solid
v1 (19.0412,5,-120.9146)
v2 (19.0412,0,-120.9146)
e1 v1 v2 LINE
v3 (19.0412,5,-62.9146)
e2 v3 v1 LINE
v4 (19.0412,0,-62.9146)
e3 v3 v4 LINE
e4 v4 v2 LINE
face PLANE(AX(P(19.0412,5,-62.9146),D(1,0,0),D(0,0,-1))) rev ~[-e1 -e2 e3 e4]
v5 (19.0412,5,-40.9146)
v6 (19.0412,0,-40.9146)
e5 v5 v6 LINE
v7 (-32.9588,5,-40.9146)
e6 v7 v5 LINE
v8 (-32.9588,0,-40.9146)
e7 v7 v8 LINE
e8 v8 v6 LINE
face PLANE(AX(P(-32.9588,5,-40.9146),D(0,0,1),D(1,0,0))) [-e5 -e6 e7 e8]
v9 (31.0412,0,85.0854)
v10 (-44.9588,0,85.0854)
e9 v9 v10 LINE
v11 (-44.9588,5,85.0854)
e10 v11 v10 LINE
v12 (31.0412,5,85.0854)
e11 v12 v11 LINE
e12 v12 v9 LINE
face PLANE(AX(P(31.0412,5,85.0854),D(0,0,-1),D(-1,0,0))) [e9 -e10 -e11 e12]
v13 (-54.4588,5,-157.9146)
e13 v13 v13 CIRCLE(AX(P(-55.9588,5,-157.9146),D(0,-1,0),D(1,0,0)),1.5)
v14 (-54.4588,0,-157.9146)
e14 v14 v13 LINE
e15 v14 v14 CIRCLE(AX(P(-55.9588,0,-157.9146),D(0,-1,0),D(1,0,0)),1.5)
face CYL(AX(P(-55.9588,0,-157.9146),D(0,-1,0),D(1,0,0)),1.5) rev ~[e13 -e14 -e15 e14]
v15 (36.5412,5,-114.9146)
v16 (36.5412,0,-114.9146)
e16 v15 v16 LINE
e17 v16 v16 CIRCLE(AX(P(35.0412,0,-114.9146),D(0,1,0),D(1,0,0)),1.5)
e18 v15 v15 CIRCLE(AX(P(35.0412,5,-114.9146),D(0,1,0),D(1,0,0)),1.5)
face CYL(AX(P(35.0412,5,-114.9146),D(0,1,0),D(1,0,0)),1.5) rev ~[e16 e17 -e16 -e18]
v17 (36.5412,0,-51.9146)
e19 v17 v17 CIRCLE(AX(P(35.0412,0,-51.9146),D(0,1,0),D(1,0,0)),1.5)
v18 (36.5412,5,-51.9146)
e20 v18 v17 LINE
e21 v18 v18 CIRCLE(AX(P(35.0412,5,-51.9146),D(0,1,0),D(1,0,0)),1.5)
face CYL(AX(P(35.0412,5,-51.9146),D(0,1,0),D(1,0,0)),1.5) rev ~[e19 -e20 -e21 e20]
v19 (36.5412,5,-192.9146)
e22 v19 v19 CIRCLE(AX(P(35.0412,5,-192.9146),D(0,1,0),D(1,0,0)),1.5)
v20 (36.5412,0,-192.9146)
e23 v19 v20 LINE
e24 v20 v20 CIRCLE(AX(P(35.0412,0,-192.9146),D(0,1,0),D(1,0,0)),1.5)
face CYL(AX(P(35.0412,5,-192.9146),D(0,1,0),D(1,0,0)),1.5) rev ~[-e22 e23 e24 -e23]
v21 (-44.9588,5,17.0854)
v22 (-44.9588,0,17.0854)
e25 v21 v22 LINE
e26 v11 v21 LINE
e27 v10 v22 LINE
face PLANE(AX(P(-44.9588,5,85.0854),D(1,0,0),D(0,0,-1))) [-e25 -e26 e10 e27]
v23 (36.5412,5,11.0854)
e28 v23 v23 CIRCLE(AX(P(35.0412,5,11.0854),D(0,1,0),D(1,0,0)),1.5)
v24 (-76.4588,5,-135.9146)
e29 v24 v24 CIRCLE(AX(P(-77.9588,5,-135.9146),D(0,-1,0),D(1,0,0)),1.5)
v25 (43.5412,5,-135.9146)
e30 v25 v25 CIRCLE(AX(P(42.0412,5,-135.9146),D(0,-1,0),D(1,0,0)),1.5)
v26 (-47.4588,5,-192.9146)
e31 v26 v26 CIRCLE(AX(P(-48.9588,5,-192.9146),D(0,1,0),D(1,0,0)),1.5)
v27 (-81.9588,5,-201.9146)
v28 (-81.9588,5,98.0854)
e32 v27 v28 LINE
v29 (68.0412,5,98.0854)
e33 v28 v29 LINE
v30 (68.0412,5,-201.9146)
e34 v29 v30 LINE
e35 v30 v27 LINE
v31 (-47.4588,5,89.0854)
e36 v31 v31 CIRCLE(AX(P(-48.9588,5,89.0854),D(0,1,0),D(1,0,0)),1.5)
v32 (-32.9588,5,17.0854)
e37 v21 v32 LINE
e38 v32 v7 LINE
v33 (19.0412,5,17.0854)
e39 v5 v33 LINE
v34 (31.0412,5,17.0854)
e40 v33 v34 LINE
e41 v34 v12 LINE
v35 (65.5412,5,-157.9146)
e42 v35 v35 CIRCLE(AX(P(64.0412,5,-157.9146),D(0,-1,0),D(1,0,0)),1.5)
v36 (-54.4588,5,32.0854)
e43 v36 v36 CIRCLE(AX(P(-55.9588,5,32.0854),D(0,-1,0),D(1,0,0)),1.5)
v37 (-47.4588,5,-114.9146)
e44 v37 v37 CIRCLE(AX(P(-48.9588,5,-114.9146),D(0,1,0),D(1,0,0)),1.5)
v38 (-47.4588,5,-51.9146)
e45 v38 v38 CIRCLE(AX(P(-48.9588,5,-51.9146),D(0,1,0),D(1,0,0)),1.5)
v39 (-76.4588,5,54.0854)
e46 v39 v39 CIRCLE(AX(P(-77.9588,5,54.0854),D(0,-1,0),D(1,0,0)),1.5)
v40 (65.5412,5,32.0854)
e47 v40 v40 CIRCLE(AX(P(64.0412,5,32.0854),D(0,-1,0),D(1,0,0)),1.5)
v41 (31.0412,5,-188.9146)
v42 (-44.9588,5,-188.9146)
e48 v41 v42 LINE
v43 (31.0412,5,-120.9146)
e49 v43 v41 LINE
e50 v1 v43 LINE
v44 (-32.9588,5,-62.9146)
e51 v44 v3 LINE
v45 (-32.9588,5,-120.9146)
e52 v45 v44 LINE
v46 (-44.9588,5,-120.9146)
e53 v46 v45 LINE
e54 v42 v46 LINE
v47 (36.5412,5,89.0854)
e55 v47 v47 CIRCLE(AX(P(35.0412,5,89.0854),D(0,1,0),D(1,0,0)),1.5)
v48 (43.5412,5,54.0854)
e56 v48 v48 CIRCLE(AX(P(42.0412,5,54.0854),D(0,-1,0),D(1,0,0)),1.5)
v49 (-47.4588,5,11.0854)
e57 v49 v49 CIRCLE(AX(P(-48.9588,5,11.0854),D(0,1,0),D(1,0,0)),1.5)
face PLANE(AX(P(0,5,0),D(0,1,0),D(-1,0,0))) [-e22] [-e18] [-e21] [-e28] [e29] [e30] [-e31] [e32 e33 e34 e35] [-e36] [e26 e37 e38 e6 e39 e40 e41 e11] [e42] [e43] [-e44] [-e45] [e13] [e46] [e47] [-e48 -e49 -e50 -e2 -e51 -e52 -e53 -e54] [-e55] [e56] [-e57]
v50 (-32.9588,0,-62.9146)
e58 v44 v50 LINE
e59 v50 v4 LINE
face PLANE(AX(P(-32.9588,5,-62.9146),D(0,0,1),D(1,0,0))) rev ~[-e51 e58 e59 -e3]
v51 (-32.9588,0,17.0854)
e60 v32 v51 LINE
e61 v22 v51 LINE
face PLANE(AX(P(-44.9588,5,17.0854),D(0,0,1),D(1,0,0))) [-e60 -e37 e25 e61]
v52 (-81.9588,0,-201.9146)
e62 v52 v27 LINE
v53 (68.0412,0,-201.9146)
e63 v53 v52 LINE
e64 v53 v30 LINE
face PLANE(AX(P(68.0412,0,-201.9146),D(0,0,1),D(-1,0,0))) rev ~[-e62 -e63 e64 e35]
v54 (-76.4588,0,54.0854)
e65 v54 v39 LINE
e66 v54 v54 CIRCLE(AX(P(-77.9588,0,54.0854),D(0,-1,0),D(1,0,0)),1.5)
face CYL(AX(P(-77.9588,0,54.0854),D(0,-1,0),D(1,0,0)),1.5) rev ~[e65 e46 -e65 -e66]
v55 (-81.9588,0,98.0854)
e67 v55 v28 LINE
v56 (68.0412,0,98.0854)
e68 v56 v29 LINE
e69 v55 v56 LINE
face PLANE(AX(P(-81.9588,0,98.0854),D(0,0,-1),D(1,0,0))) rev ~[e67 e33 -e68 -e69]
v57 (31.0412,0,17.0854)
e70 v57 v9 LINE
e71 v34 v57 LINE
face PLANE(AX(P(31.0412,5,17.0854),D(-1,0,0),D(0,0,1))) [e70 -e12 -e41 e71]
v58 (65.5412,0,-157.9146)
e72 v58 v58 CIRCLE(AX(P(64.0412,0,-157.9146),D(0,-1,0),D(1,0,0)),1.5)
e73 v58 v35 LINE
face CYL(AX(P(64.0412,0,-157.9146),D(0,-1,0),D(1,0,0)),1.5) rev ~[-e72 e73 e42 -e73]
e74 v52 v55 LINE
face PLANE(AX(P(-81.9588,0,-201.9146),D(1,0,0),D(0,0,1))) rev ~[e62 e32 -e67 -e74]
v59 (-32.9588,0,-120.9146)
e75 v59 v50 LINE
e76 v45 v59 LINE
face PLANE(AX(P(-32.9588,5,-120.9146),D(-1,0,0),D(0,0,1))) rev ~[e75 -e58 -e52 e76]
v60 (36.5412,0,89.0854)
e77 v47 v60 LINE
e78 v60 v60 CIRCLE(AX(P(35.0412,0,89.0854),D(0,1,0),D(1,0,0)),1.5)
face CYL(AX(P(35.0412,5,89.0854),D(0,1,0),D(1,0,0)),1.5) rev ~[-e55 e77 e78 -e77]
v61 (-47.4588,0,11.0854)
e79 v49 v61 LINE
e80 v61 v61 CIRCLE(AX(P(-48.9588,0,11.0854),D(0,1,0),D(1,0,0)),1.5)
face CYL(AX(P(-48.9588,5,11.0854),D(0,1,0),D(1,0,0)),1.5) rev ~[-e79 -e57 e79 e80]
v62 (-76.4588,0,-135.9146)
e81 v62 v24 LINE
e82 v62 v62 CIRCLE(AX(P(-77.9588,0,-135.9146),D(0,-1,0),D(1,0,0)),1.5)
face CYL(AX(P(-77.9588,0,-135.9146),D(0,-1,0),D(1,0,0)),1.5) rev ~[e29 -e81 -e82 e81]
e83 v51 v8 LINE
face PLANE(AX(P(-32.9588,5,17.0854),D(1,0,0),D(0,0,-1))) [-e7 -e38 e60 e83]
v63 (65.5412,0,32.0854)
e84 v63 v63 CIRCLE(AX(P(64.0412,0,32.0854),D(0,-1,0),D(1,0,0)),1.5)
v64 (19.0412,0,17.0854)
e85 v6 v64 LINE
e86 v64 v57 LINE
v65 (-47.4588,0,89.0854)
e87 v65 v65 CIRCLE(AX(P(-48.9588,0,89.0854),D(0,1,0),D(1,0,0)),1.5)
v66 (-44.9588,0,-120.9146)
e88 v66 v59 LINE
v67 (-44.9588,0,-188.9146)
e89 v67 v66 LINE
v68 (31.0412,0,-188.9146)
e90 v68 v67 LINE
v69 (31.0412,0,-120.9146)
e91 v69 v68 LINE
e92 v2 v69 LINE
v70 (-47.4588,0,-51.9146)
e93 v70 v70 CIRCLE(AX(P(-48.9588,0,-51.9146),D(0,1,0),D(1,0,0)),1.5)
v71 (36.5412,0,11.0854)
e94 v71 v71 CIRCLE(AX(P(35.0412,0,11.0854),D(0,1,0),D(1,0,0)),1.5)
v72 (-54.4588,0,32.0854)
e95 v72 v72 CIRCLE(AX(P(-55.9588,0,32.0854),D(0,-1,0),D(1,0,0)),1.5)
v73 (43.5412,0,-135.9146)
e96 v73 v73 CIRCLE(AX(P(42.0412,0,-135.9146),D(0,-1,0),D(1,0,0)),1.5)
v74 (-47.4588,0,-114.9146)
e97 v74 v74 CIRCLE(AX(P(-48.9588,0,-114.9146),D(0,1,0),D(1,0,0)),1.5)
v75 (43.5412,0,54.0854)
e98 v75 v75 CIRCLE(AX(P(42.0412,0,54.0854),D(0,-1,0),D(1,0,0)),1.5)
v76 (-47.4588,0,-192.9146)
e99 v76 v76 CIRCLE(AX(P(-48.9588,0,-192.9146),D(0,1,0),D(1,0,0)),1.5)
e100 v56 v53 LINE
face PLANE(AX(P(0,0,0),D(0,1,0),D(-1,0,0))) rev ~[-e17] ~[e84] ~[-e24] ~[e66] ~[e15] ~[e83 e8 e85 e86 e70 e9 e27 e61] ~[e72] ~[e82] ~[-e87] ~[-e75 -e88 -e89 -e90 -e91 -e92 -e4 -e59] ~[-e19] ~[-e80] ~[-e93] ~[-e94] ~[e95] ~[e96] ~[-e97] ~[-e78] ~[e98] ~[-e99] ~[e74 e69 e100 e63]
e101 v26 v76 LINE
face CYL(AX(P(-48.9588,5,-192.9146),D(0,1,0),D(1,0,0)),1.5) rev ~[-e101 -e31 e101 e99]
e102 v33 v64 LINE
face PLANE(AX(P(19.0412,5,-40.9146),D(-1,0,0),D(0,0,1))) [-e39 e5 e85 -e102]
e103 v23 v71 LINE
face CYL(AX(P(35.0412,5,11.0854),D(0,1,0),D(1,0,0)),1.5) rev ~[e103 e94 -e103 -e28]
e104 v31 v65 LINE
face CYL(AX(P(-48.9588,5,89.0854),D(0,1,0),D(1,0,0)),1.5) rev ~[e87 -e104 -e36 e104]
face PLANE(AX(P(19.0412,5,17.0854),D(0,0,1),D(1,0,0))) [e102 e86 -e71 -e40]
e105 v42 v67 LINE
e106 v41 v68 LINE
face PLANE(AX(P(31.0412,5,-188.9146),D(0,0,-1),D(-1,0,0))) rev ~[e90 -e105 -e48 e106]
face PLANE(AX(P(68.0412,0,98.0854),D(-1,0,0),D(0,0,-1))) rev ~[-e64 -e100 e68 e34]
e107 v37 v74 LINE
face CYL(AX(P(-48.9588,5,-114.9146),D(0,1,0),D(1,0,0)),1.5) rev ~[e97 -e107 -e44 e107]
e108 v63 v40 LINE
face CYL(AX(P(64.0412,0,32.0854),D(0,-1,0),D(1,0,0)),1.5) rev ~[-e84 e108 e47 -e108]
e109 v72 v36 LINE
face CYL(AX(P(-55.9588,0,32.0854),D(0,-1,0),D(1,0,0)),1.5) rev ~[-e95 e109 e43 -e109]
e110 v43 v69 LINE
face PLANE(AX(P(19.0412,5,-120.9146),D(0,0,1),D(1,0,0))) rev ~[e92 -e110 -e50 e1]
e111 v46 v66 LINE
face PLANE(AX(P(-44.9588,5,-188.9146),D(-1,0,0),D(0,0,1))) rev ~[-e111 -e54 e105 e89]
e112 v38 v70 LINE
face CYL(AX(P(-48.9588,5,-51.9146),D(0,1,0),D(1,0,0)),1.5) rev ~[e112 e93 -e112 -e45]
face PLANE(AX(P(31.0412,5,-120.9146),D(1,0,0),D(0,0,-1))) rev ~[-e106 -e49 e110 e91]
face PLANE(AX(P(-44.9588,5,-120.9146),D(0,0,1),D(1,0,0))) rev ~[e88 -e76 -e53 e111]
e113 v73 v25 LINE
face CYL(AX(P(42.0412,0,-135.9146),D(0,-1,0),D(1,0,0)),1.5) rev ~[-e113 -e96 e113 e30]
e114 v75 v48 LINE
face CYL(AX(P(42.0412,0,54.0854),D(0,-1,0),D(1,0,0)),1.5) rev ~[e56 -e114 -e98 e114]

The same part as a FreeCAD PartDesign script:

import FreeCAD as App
import Part
import Sketcher
Q = App.Units.Quantity


def add_polygon(sketch, points):
    """Adds a closed chain of lines whose ends are joined by coincident constraints."""
    first, n = sketch.GeometryCount, len(points)
    for a, b in zip(points, points[1:] + points[:1]):
        sketch.addGeometry(Part.LineSegment(App.Vector(*a, 0), App.Vector(*b, 0)), False)
    for i in range(n):
        sketch.addConstraint(Sketcher.Constraint("Coincident", first + i, 2, first + (i + 1) % n, 1))

doc = App.newDocument("Part")
body = doc.addObject("PartDesign::Body", "Body")

# Sketch on XZ plane
sketch1 = body.newObject("Sketcher::SketchObject", "Sketch")
sketch1.AttachmentSupport = (doc.getObject("XZ_Plane"), [""])
sketch1.MapMode = "FlatFace"
add_polygon(sketch1, [(-82, -202), (-82, 98), (68, 98), (68, -202)])  # lines 0-3
sketch1.addConstraint([
    Sketcher.Constraint("Vertical", 0),
    Sketcher.Constraint("Horizontal", 1),
    Sketcher.Constraint("Vertical", 2),
    Sketcher.Constraint("Horizontal", 3),
    Sketcher.Constraint("DistanceX", 1, 1, 1, 2, Q("150 mm")),
    Sketcher.Constraint("DistanceY", 0, 1, 0, 2, Q("300 mm")),
    Sketcher.Constraint("DistanceX", 0, 2, -1, 1, Q("81.9588 mm")),
    Sketcher.Constraint("DistanceY", -1, 1, 0, 2, Q("98.0854 mm")),
])
pad1 = body.newObject("PartDesign::Pad", "Pad")
pad1.Profile = sketch1
pad1.Length = 5
pad1.Reversed = True

# Sketch on XZ plane
sketch2 = body.newObject("Sketcher::SketchObject", "Sketch001")
sketch2.AttachmentSupport = (doc.getObject("XZ_Plane"), [""])
sketch2.MapMode = "FlatFace"
sketch2.AttachmentOffset = App.Placement(App.Vector(0, 0, -5), App.Rotation())
add_polygon(sketch2, [(-45, 85.1), (31, 85.1), (31, 17.1), (19, 17.1), (19, -40.9), (-33, -40.9), (-33, 17.1), (-45, 17.1)])  # lines 0-7
add_polygon(sketch2, [(31, -120.9), (31, -188.9), (-45, -188.9), (-45, -120.9), (-33, -120.9), (-33, -62.9), (19, -62.9), (19, -120.9)])  # lines 8-15
sketch2.addGeometry(Part.Circle(App.Vector(35, -51.9, 0), App.Vector(0, 0, 1), 1.5), False)  # 16
sketch2.addGeometry(Part.Circle(App.Vector(-49, -51.9, 0), App.Vector(0, 0, 1), 1.5), False)  # 17
sketch2.addConstraint([
    Sketcher.Constraint("Horizontal", 0),
    Sketcher.Constraint("Vertical", 1),
    Sketcher.Constraint("Horizontal", 2),
    Sketcher.Constraint("Vertical", 3),
    Sketcher.Constraint("Horizontal", 4),
    Sketcher.Constraint("Vertical", 5),
    Sketcher.Constraint("Horizontal", 6),
    Sketcher.Constraint("Vertical", 7),
    Sketcher.Constraint("Vertical", 8),
    Sketcher.Constraint("Horizontal", 9),
    Sketcher.Constraint("Vertical", 10),
    Sketcher.Constraint("Horizontal", 11),
    Sketcher.Constraint("Vertical", 12),
    Sketcher.Constraint("Horizontal", 13),
    Sketcher.Constraint("Vertical", 14),
    Sketcher.Constraint("Horizontal", 15),
    Sketcher.Constraint("Equal", 16, 17),
    Sketcher.Constraint("Horizontal", 16, 3, 17, 3),
    Sketcher.Constraint("Horizontal", 2, 2, 5, 2),
    Sketcher.Constraint("Horizontal", 11, 2, 14, 2),
    Sketcher.Constraint("Vertical", 1, 2, 8, 2),
    Sketcher.Constraint("Vertical", 7, 2, 9, 2),
    Sketcher.Constraint("Vertical", 5, 2, 11, 2),
    Sketcher.Constraint("Vertical", 3, 2, 13, 2),
    Sketcher.Constraint("Equal", 2, 6),
    Sketcher.Constraint("Equal", 7, 8),
    Sketcher.Constraint("Equal", 5, 12),
    Sketcher.Constraint("Diameter", 16, Q("3 mm")),
    Sketcher.Constraint("DistanceX", 0, 1, 0, 2, Q("76 mm")),
    Sketcher.Constraint("DistanceX", 2, 2, 2, 1, Q("12 mm")),
    Sketcher.Constraint("DistanceY", 1, 2, 1, 1, Q("68 mm")),
    Sketcher.Constraint("DistanceY", 3, 2, 3, 1, Q("58 mm")),
    Sketcher.Constraint("DistanceX", 17, 3, 2, 2, Q("68 mm")),
    Sketcher.Constraint("DistanceX", 4, 2, 16, 3, Q("68 mm")),
    Sketcher.Constraint("DistanceY", 16, 3, 0, 2, Q("137 mm")),
    Sketcher.Constraint("DistanceY", 8, 2, 16, 3, Q("137 mm")),
    Sketcher.Constraint("DistanceX", -1, 1, 16, 3, Q("35.0412 mm")),
    Sketcher.Constraint("DistanceY", 16, 3, -1, 1, Q("51.9146 mm")),
])
pocket1 = body.newObject("PartDesign::Pocket", "Pocket")
pocket1.Profile = sketch2
pocket1.Type = "ThroughAll"
pocket1.Reversed = True

# Sketch on XZ plane
sketch3 = body.newObject("Sketcher::SketchObject", "Sketch002")
sketch3.AttachmentSupport = (doc.getObject("XZ_Plane"), [""])
sketch3.MapMode = "FlatFace"
sketch3.AttachmentOffset = App.Placement(App.Vector(0, 0, -5), App.Rotation())
sketch3.addGeometry([
    Part.Circle(App.Vector(-49, 89.1, 0), App.Vector(0, 0, 1), 1.5),  # 0
    Part.Circle(App.Vector(-49, 11.1, 0), App.Vector(0, 0, 1), 1.5),  # 1
    Part.Circle(App.Vector(-49, -114.9, 0), App.Vector(0, 0, 1), 1.5),  # 2
    Part.Circle(App.Vector(-49, -192.9, 0), App.Vector(0, 0, 1), 1.5),  # 3
    Part.Circle(App.Vector(35, -192.9, 0), App.Vector(0, 0, 1), 1.5),  # 4
    Part.Circle(App.Vector(35, -114.9, 0), App.Vector(0, 0, 1), 1.5),  # 5
    Part.Circle(App.Vector(35, 11.1, 0), App.Vector(0, 0, 1), 1.5),  # 6
    Part.Circle(App.Vector(35, 89.1, 0), App.Vector(0, 0, 1), 1.5),  # 7
], False)
sketch3.addConstraint([
    Sketcher.Constraint("Equal", 0, 1),
    Sketcher.Constraint("Equal", 1, 2),
    Sketcher.Constraint("Equal", 2, 3),
    Sketcher.Constraint("Equal", 3, 4),
    Sketcher.Constraint("Equal", 4, 5),
    Sketcher.Constraint("Equal", 5, 6),
    Sketcher.Constraint("Equal", 6, 7),
    Sketcher.Constraint("Horizontal", 3, 3, 4, 3),
    Sketcher.Constraint("Horizontal", 2, 3, 5, 3),
    Sketcher.Constraint("Horizontal", 1, 3, 6, 3),
    Sketcher.Constraint("Horizontal", 0, 3, 7, 3),
    Sketcher.Constraint("Vertical", 0, 3, 1, 3),
    Sketcher.Constraint("Vertical", 1, 3, 2, 3),
    Sketcher.Constraint("Vertical", 2, 3, 3, 3),
    Sketcher.Constraint("Vertical", 4, 3, 5, 3),
    Sketcher.Constraint("Vertical", 5, 3, 6, 3),
    Sketcher.Constraint("Vertical", 6, 3, 7, 3),
    Sketcher.Constraint("Diameter", 0, Q("3 mm")),
    Sketcher.Constraint("DistanceY", 1, 3, 0, 3, Q("78 mm")),
    Sketcher.Constraint("DistanceY", 2, 3, 1, 3, Q("126 mm")),
    Sketcher.Constraint("DistanceY", 3, 3, 2, 3, Q("78 mm")),
    Sketcher.Constraint("DistanceX", 3, 3, 4, 3, Q("84 mm")),
    Sketcher.Constraint("DistanceX", 0, 3, -1, 1, Q("48.9588 mm")),
    Sketcher.Constraint("DistanceY", -1, 1, 0, 3, Q("89.0854 mm")),
])
pocket2 = body.newObject("PartDesign::Pocket", "Pocket001")
pocket2.Profile = sketch3
pocket2.Type = "ThroughAll"
pocket2.Reversed = True

# Sketch on XZ plane
sketch4 = body.newObject("Sketcher::SketchObject", "Sketch003")
sketch4.AttachmentSupport = (doc.getObject("XZ_Plane"), [""])
sketch4.MapMode = "FlatFace"
sketch4.addGeometry([
    Part.Circle(App.Vector(-78, 54.1, 0), App.Vector(0, 0, 1), 1.5),  # 0
    Part.Circle(App.Vector(-56, 32.1, 0), App.Vector(0, 0, 1), 1.5),  # 1
    Part.Circle(App.Vector(42, 54.1, 0), App.Vector(0, 0, 1), 1.5),  # 2
    Part.Circle(App.Vector(64, 32.1, 0), App.Vector(0, 0, 1), 1.5),  # 3
    Part.Circle(App.Vector(42, -135.9, 0), App.Vector(0, 0, 1), 1.5),  # 4
    Part.Circle(App.Vector(64, -157.9, 0), App.Vector(0, 0, 1), 1.5),  # 5
    Part.Circle(App.Vector(-56, -157.9, 0), App.Vector(0, 0, 1), 1.5),  # 6
    Part.Circle(App.Vector(-78, -135.9, 0), App.Vector(0, 0, 1), 1.5),  # 7
], False)
sketch4.addConstraint([
    Sketcher.Constraint("Equal", 0, 1),
    Sketcher.Constraint("Equal", 1, 2),
    Sketcher.Constraint("Equal", 2, 3),
    Sketcher.Constraint("Equal", 3, 4),
    Sketcher.Constraint("Equal", 4, 5),
    Sketcher.Constraint("Equal", 5, 6),
    Sketcher.Constraint("Equal", 6, 7),
    Sketcher.Constraint("Horizontal", 0, 3, 2, 3),
    Sketcher.Constraint("Horizontal", 1, 3, 3, 3),
    Sketcher.Constraint("Horizontal", 5, 3, 6, 3),
    Sketcher.Constraint("Horizontal", 4, 3, 7, 3),
    Sketcher.Constraint("Vertical", 2, 3, 4, 3),
    Sketcher.Constraint("Vertical", 3, 3, 5, 3),
    Sketcher.Constraint("Vertical", 1, 3, 6, 3),
    Sketcher.Constraint("Vertical", 0, 3, 7, 3),
    Sketcher.Constraint("Diameter", 0, Q("3 mm")),
    Sketcher.Constraint("DistanceX", 0, 3, 1, 3, Q("22 mm")),
    Sketcher.Constraint("DistanceY", 1, 3, 0, 3, Q("22 mm")),
    Sketcher.Constraint("DistanceX", 1, 3, 2, 3, Q("98 mm")),
    Sketcher.Constraint("DistanceX", 2, 3, 3, 3, Q("22 mm")),
    Sketcher.Constraint("DistanceY", 4, 3, 3, 3, Q("168 mm")),
    Sketcher.Constraint("DistanceY", 5, 3, 4, 3, Q("22 mm")),
    Sketcher.Constraint("DistanceX", 0, 3, -1, 1, Q("77.9588 mm")),
    Sketcher.Constraint("DistanceY", -1, 1, 0, 3, Q("54.0854 mm")),
])
pocket3 = body.newObject("PartDesign::Pocket", "Pocket002")
pocket3.Profile = sketch4
pocket3.Type = "ThroughAll"

doc.recompute()
